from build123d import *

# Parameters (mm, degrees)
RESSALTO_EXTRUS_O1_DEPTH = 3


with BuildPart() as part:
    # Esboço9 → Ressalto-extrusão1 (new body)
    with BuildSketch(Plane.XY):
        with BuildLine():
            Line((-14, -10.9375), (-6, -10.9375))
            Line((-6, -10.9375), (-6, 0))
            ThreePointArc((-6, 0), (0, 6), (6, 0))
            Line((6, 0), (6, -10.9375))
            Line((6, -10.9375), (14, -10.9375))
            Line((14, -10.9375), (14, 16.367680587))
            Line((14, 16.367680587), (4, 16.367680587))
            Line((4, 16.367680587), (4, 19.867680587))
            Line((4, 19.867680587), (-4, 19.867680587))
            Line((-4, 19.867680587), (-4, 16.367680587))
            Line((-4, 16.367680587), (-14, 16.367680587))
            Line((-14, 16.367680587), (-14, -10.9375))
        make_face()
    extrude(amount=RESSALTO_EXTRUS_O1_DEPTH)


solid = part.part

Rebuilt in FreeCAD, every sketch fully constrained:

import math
import FreeCAD as App
import Part
import Sketcher
from FreeCAD import Vector

doc = App.newDocument("Part")
body = doc.addObject("PartDesign::Body", "Body")

# Sketch on XY plane
sketch1 = doc.addObject("Sketcher::SketchObject", "Sketch")
body.addObject(sketch1)
sketch1.AttachmentSupport = (doc.XY_Plane, [""])
sketch1.MapMode = "FlatFace"
sketch1.addGeometry(Part.LineSegment(Vector(-14, -10.9375, 0), Vector(-6, -10.9375, 0)), False)
sketch1.addGeometry(Part.LineSegment(Vector(-6, -10.9375, 0), Vector(-6, 0, 0)), False)
sketch1.addGeometry(Part.ArcOfCircle(Part.Circle(Vector(0, 0, 0), Vector(0, 0, 1), 6), math.radians(0), math.radians(180)), False)
sketch1.addGeometry(Part.LineSegment(Vector(6, 0, 0), Vector(6, -10.9375, 0)), False)
sketch1.addGeometry(Part.LineSegment(Vector(6, -10.9375, 0), Vector(14, -10.9375, 0)), False)
sketch1.addGeometry(Part.LineSegment(Vector(14, -10.9375, 0), Vector(14, 16.367681, 0)), False)
sketch1.addGeometry(Part.LineSegment(Vector(14, 16.367681, 0), Vector(4, 16.367681, 0)), False)
sketch1.addGeometry(Part.LineSegment(Vector(4, 16.367681, 0), Vector(4, 19.867681, 0)), False)
sketch1.addGeometry(Part.LineSegment(Vector(4, 19.867681, 0), Vector(-4, 19.867681, 0)), False)
sketch1.addGeometry(Part.LineSegment(Vector(-4, 19.867681, 0), Vector(-4, 16.367681, 0)), False)
sketch1.addGeometry(Part.LineSegment(Vector(-4, 16.367681, 0), Vector(-14, 16.367681, 0)), False)
sketch1.addGeometry(Part.LineSegment(Vector(-14, 16.367681, 0), Vector(-14, -10.9375, 0)), False)
sketch1.addConstraint(Sketcher.Constraint("Coincident", 0, 2, 1, 1))
sketch1.addConstraint(Sketcher.Constraint("Tangent", 1, 2, 2, 2))
sketch1.addConstraint(Sketcher.Constraint("Tangent", 2, 1, 3, 1))
sketch1.addConstraint(Sketcher.Constraint("Coincident", 3, 2, 4, 1))
sketch1.addConstraint(Sketcher.Constraint("Coincident", 4, 2, 5, 1))
sketch1.addConstraint(Sketcher.Constraint("Coincident", 5, 2, 6, 1))
sketch1.addConstraint(Sketcher.Constraint("Coincident", 6, 2, 7, 1))
sketch1.addConstraint(Sketcher.Constraint("Coincident", 7, 2, 8, 1))
sketch1.addConstraint(Sketcher.Constraint("Coincident", 8, 2, 9, 1))
sketch1.addConstraint(Sketcher.Constraint("Coincident", 9, 2, 10, 1))
sketch1.addConstraint(Sketcher.Constraint("Coincident", 10, 2, 11, 1))
sketch1.addConstraint(Sketcher.Constraint("Coincident", 11, 2, 0, 1))
sketch1.addConstraint(Sketcher.Constraint("Horizontal", 0))
sketch1.addConstraint(Sketcher.Constraint("Vertical", 1))
sketch1.addConstraint(Sketcher.Constraint("Vertical", 3))
sketch1.addConstraint(Sketcher.Constraint("Horizontal", 4))
sketch1.addConstraint(Sketcher.Constraint("Vertical", 5))
sketch1.addConstraint(Sketcher.Constraint("Horizontal", 6))
sketch1.addConstraint(Sketcher.Constraint("Vertical", 7))
sketch1.addConstraint(Sketcher.Constraint("Horizontal", 8))
sketch1.addConstraint(Sketcher.Constraint("Vertical", 9))
sketch1.addConstraint(Sketcher.Constraint("Horizontal", 10))
sketch1.addConstraint(Sketcher.Constraint("Vertical", 11))
sketch1.addConstraint(Sketcher.Constraint("Coincident", 2, 3, -1, 1))
sketch1.addConstraint(Sketcher.Constraint("Symmetric", 6, 2, 9, 2, -2))
sketch1.addConstraint(Sketcher.Constraint("Symmetric", 4, 2, 11, 2, -2))
sketch1.addConstraint(Sketcher.Constraint("Equal", 4, 8))
sketch1.addConstraint(Sketcher.Constraint("Radius", 2, 6.0))
sketch1.addConstraint(Sketcher.Constraint("DistanceX", 0, 1, 0, 2, 8.0))
sketch1.addConstraint(Sketcher.Constraint("DistanceY", 7, 1, 7, 2, 3.5))
sketch1.addConstraint(Sketcher.Constraint("DistanceY", 1, 1, 1, 2, 10.9375))
sketch1.addConstraint(Sketcher.Constraint("DistanceY", 5, 1, 5, 2, 27.305181))
pad1 = doc.addObject("PartDesign::Pad", "Pad")
body.addObject(pad1)
pad1.Profile = sketch1
pad1.Length = 3

doc.recompute()
